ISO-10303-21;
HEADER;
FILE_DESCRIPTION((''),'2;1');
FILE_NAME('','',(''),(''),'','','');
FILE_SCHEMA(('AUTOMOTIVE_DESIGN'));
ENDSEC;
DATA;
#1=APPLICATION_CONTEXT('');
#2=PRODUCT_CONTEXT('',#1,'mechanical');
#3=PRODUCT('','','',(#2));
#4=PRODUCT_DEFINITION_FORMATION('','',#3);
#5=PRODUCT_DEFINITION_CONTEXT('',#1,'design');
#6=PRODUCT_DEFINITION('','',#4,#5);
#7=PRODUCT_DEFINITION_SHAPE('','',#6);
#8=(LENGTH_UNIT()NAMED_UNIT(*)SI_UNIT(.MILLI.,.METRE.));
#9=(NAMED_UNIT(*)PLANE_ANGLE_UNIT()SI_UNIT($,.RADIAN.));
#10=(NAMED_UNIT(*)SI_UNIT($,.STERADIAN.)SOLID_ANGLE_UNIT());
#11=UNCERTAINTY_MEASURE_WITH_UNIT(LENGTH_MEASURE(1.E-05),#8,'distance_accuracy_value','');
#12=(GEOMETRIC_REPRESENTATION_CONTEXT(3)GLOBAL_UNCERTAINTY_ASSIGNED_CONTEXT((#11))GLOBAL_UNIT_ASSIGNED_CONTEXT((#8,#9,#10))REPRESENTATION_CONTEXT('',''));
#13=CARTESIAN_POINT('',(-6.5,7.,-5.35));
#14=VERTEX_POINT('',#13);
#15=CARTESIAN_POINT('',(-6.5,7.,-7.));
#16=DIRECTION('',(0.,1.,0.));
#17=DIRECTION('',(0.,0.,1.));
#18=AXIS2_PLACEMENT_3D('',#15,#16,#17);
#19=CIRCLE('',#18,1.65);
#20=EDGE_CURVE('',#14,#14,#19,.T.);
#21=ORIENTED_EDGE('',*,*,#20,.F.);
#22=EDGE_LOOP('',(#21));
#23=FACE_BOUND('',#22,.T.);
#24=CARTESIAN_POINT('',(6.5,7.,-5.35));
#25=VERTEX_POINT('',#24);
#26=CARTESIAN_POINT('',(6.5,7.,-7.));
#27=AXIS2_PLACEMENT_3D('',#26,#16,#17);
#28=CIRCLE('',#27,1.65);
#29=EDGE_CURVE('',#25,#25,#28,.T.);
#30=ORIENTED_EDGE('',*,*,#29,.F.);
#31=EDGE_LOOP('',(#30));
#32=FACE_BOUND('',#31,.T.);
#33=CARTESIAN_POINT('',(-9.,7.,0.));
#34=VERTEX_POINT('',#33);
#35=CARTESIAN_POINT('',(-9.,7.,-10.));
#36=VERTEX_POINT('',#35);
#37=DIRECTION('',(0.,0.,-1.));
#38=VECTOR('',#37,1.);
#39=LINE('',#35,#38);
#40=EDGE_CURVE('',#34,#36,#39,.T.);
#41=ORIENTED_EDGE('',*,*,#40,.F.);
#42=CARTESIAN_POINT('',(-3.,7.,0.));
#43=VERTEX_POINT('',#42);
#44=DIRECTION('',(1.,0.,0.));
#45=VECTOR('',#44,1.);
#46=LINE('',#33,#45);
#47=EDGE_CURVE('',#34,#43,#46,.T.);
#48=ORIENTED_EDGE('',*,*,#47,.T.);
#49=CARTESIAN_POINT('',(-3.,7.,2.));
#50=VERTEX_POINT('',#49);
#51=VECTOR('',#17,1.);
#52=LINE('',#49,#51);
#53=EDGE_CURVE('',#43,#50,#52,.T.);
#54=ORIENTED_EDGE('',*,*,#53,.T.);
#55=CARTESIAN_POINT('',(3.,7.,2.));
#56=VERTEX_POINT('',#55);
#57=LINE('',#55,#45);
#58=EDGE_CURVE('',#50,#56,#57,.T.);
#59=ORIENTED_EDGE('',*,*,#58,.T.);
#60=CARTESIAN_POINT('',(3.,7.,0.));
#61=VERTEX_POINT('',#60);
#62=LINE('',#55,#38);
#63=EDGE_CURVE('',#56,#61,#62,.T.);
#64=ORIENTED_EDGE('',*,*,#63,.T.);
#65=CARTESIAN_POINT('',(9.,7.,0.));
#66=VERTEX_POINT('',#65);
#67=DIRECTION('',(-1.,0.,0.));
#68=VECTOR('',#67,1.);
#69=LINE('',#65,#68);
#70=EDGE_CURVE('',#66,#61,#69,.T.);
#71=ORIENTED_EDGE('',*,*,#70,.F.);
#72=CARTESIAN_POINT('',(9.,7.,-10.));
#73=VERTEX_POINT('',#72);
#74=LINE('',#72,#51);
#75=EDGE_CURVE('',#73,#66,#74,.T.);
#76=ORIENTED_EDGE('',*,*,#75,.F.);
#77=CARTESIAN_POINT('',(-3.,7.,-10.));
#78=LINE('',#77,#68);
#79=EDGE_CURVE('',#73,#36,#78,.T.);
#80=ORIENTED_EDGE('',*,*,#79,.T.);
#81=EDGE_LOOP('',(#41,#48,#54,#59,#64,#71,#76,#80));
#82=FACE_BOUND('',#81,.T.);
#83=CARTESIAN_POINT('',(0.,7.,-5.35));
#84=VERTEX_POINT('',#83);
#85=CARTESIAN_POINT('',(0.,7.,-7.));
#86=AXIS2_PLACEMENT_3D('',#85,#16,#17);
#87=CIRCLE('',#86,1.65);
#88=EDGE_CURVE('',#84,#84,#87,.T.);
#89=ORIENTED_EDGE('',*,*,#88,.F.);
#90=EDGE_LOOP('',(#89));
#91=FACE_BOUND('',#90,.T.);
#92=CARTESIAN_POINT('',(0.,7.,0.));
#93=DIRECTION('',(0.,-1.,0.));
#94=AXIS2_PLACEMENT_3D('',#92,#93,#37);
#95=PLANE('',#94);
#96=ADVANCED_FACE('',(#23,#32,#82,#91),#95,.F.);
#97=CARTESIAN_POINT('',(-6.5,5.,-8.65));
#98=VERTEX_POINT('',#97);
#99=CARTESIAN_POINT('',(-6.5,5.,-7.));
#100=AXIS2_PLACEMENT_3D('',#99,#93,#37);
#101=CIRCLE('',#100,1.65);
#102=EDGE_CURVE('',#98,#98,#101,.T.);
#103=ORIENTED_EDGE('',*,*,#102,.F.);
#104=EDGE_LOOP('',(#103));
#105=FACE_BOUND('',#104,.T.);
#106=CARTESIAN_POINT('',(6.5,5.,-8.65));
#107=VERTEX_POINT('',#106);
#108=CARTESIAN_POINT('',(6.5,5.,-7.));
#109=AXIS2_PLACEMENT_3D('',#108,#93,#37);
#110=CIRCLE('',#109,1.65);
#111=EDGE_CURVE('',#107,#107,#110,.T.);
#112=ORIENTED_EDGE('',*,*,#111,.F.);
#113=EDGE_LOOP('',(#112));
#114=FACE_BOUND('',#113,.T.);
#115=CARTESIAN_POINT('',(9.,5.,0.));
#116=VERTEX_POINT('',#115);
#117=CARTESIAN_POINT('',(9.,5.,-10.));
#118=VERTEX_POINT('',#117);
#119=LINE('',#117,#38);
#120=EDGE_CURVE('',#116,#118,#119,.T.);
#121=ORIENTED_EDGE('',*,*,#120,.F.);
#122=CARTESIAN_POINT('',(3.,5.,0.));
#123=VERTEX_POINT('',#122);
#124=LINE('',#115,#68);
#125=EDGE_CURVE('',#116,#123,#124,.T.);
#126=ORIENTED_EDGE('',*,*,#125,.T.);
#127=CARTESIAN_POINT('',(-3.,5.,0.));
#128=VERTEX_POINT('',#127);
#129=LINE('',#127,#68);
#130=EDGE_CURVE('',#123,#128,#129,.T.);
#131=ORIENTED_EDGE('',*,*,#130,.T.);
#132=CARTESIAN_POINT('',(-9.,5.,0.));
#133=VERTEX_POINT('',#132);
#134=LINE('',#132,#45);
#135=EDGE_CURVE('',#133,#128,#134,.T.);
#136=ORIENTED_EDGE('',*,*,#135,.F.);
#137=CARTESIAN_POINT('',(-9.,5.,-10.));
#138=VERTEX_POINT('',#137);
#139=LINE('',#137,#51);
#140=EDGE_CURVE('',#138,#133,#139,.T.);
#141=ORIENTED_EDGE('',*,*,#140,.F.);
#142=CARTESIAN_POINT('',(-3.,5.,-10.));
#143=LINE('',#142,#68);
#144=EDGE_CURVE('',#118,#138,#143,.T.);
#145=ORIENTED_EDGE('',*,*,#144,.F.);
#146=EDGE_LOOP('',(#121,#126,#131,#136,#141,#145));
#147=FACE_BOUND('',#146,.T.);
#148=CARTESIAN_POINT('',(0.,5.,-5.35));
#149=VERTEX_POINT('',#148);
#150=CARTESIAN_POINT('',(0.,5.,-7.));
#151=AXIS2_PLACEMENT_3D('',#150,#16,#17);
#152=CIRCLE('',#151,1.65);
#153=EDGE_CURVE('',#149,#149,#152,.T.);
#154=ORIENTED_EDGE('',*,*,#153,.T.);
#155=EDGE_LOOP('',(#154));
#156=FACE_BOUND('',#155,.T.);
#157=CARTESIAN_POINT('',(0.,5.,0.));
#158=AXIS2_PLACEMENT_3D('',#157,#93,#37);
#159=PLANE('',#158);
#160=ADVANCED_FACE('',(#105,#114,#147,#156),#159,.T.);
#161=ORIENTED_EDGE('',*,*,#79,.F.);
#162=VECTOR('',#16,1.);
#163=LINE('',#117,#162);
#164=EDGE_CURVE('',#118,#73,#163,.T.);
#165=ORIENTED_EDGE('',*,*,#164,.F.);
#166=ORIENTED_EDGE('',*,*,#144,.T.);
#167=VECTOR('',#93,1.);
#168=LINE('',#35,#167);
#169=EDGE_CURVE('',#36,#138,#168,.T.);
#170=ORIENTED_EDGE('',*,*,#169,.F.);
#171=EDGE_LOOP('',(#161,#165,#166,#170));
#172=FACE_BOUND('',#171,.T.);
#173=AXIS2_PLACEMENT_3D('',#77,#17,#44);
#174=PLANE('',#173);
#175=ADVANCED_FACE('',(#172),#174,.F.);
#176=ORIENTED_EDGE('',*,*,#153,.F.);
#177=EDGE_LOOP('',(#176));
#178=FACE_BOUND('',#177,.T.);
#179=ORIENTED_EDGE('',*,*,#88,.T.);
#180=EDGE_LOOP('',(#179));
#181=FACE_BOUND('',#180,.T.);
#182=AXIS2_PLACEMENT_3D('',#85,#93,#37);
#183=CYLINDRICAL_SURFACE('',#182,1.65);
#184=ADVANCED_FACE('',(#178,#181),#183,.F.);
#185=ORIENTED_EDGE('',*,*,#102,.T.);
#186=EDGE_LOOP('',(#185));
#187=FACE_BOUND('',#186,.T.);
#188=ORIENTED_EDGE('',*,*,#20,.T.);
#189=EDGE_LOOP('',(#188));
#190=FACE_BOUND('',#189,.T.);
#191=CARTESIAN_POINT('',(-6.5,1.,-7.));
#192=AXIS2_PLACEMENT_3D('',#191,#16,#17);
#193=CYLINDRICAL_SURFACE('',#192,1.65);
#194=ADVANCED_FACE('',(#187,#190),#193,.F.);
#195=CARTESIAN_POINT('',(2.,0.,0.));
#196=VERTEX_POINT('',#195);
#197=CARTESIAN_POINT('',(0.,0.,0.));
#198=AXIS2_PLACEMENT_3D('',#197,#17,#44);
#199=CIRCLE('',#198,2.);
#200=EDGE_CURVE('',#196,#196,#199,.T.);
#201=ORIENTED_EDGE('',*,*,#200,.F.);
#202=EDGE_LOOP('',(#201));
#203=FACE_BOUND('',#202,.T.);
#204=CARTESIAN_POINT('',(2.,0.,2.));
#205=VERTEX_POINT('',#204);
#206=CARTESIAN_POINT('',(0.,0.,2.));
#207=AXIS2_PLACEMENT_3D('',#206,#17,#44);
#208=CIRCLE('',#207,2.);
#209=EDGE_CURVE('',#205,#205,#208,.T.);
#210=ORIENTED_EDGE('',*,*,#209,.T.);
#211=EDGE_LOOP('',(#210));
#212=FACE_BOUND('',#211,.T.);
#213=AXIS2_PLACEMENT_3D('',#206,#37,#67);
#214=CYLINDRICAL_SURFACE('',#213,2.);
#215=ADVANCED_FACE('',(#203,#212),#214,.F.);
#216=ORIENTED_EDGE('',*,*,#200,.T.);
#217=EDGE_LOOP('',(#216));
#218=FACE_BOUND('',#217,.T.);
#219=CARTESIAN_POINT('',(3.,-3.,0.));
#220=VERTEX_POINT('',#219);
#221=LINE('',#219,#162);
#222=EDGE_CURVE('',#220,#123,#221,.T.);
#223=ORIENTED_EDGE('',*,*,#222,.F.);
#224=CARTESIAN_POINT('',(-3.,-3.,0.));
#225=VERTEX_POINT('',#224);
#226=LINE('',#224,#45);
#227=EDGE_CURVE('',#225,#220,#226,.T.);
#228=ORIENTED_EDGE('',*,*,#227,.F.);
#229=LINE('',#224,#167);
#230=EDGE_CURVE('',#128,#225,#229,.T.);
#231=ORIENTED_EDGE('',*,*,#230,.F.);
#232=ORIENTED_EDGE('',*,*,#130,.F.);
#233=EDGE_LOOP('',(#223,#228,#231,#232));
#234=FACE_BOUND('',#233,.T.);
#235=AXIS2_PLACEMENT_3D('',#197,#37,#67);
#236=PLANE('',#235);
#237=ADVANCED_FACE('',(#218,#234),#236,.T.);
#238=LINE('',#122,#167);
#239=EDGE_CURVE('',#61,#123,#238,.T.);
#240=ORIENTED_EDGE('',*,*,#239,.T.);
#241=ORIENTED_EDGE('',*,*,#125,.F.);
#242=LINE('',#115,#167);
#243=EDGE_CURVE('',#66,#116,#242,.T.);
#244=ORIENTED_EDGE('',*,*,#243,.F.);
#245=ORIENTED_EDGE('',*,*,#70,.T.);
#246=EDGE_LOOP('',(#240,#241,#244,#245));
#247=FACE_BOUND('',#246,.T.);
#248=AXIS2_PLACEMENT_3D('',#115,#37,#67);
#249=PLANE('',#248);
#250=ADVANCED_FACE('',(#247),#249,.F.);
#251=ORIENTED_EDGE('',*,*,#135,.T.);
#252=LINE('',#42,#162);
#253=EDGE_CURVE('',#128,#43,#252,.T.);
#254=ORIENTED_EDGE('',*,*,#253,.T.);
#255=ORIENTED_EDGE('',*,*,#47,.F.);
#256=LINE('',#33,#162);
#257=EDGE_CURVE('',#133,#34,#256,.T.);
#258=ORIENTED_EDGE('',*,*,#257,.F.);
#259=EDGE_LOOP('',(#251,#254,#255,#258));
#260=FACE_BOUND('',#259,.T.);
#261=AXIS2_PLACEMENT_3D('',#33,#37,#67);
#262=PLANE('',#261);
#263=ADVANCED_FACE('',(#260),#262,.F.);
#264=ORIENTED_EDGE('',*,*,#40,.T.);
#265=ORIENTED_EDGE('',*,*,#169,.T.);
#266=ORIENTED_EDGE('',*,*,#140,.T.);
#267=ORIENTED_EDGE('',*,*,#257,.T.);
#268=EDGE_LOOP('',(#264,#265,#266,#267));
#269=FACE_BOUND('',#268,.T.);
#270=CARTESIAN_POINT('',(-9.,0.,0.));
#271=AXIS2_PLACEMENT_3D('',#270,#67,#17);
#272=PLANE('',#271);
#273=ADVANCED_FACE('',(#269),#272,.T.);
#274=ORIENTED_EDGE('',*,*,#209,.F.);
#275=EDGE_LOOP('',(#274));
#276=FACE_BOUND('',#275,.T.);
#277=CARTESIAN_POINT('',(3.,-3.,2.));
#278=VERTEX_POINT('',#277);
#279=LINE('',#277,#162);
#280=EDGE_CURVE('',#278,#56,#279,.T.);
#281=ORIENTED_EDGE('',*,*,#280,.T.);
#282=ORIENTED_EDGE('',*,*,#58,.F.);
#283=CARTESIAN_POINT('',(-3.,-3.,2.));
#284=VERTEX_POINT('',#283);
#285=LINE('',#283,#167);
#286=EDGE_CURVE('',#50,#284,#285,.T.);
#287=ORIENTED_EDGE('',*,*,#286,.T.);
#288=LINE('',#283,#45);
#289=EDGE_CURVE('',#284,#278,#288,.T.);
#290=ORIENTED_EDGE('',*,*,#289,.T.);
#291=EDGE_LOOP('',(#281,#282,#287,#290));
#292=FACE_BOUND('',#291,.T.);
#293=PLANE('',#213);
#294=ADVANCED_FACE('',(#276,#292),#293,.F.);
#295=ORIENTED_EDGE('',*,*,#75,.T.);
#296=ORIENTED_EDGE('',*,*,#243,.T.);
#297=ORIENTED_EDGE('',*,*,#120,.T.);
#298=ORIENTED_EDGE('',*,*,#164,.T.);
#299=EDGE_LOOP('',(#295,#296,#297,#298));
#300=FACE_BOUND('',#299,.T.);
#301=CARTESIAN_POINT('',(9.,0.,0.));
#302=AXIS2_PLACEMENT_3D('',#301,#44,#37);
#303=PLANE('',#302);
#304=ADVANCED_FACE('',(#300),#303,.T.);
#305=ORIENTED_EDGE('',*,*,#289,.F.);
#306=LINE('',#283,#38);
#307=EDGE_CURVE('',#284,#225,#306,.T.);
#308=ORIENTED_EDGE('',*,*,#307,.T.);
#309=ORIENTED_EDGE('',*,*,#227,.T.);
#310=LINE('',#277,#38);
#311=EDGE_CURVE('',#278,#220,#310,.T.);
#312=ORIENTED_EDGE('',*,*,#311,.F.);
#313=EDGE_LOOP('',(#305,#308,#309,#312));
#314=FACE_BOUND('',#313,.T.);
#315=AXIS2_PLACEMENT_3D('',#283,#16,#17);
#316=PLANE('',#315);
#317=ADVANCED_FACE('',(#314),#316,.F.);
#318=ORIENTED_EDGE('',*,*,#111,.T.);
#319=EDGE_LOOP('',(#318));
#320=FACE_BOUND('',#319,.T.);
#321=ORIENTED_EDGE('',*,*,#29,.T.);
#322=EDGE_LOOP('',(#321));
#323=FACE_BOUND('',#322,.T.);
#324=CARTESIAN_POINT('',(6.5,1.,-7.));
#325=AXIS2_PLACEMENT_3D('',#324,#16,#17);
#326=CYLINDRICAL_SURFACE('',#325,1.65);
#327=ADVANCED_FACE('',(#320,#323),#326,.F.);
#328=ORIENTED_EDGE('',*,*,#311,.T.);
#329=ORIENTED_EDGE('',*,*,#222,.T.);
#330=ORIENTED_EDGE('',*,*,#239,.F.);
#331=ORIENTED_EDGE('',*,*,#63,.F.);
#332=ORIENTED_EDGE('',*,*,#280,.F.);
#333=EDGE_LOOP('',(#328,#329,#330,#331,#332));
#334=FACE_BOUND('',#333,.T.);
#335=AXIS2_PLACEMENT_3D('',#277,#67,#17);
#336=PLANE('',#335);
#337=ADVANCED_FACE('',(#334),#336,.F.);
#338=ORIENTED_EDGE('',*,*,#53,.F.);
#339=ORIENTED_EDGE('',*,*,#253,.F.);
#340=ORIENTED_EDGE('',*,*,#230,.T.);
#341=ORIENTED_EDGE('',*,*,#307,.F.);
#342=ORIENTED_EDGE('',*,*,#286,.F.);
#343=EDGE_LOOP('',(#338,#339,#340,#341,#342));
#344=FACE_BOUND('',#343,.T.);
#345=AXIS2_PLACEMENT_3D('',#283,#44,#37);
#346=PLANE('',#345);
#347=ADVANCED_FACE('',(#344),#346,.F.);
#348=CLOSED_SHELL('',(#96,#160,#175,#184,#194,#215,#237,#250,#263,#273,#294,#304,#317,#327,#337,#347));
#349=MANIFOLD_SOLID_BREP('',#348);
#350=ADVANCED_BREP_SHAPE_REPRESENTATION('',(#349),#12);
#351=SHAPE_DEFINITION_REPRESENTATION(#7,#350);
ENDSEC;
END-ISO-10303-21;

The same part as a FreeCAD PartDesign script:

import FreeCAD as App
import Part
import Sketcher
Q = App.Units.Quantity

doc = App.newDocument("Part")
params = doc.addObject("Spreadsheet::Sheet", "Params")
for row, (alias, value) in enumerate([
    ("sketch1_diameter", "4 mm"),
    ("sketch1_width", "6 mm"),
    ("sketch1_height", "8 mm"),
    ("pad1_length", "2 mm"),
    ("sketch2_diameter", "3.3 mm"),
    ("sketch2_width", "6 mm"),
    ("sketch2_height", "12 mm"),
    ("pad2_length", "2 mm"),
    ("sketch3_width", "2 mm"),
    ("sketch3_height", "10 mm"),
    ("pad3_length", "6 mm"),
    ("sketch4_width", "2 mm"),
    ("sketch4_height", "10 mm"),
    ("pad4_length", "6 mm"),
    ("sketch5_diameter", "3.3 mm"),
    ("pocket1_length", "6 mm"),
], start=1):
    params.set(f"A{row}", alias)
    params.set(f"B{row}", "=" + value)
    params.setAlias(f"B{row}", alias)

body = doc.addObject("PartDesign::Body", "Body")

# Sketch on XY plane
sketch1 = body.newObject("Sketcher::SketchObject", "Sketch")
sketch1.AttachmentSupport = (doc.getObject("XY_Plane"), [""])
sketch1.MapMode = "FlatFace"
sketch1.addGeometry([
    Part.LineSegment(App.Vector(-3, 5, 0), App.Vector(-3, -3, 0)),  # 0
    Part.LineSegment(App.Vector(-3, -3, 0), App.Vector(3, -3, 0)),  # 1
    Part.LineSegment(App.Vector(3, -3, 0), App.Vector(3, 5, 0)),  # 2
    Part.LineSegment(App.Vector(3, 5, 0), App.Vector(-3, 5, 0)),  # 3
    Part.Circle(App.Vector(0, 0, 0), App.Vector(0, 0, 1), 2),  # 4
], False)
sketch1.addConstraint([
    Sketcher.Constraint("Coincident", 0, 2, 1, 1),
    Sketcher.Constraint("Coincident", 1, 2, 2, 1),
    Sketcher.Constraint("Coincident", 2, 2, 3, 1),
    Sketcher.Constraint("Coincident", 3, 2, 0, 1),
    Sketcher.Constraint("Vertical", 0),
    Sketcher.Constraint("Horizontal", 1),
    Sketcher.Constraint("Vertical", 2),
    Sketcher.Constraint("Horizontal", 3),
    Sketcher.Constraint("Coincident", 4, 3, -1, 1),
    Sketcher.Constraint("Diameter", 4, Q("4 mm")),
    Sketcher.Constraint("DistanceX", 1, 1, 1, 2, Q("6 mm")),
    Sketcher.Constraint("DistanceY", 0, 2, 0, 1, Q("8 mm")),
    Sketcher.Constraint("DistanceX", 0, 2, -1, 1, Q("3 mm")),
    Sketcher.Constraint("DistanceY", 0, 2, -1, 1, Q("3 mm")),
])
sketch1.setExpression("Constraints[9]", "Params.sketch1_diameter")
sketch1.setExpression("Constraints[10]", "Params.sketch1_width")
sketch1.setExpression("Constraints[11]", "Params.sketch1_height")
pad1 = body.newObject("PartDesign::Pad", "Pad")
pad1.Profile = sketch1
pad1.setExpression("Length", "Params.pad1_length")

# Sketch on XZ plane
sketch2 = body.newObject("Sketcher::SketchObject", "Sketch001")
sketch2.AttachmentSupport = (doc.getObject("XZ_Plane"), [""])
sketch2.MapMode = "FlatFace"
sketch2.AttachmentOffset = App.Placement(App.Vector(0, 0, -5), App.Rotation())
sketch2.addGeometry([
    Part.LineSegment(App.Vector(-3, -10, 0), App.Vector(-3, 2, 0)),  # 0
    Part.LineSegment(App.Vector(-3, 2, 0), App.Vector(3, 2, 0)),  # 1
    Part.LineSegment(App.Vector(3, 2, 0), App.Vector(3, -10, 0)),  # 2
    Part.LineSegment(App.Vector(3, -10, 0), App.Vector(-3, -10, 0)),  # 3
    Part.Circle(App.Vector(0, -7, 0), App.Vector(0, 0, 1), 1.6),  # 4
], False)
sketch2.addConstraint([
    Sketcher.Constraint("Coincident", 0, 2, 1, 1),
    Sketcher.Constraint("Coincident", 1, 2, 2, 1),
    Sketcher.Constraint("Coincident", 2, 2, 3, 1),
    Sketcher.Constraint("Coincident", 3, 2, 0, 1),
    Sketcher.Constraint("Vertical", 0),
    Sketcher.Constraint("Horizontal", 1),
    Sketcher.Constraint("Vertical", 2),
    Sketcher.Constraint("Horizontal", 3),
    Sketcher.Constraint("PointOnObject", 4, 3, -2),
    Sketcher.Constraint("Diameter", 4, Q("3.3 mm")),
    Sketcher.Constraint("DistanceX", 1, 1, 1, 2, Q("6 mm")),
    Sketcher.Constraint("DistanceY", 0, 1, 0, 2, Q("12 mm")),
    Sketcher.Constraint("DistanceY", 4, 3, -1, 1, Q("7 mm")),
    Sketcher.Constraint("DistanceX", 0, 2, -1, 1, Q("3 mm")),
    Sketcher.Constraint("DistanceY", -1, 1, 0, 2, Q("2 mm")),
])
sketch2.setExpression("Constraints[9]", "Params.sketch2_diameter")
sketch2.setExpression("Constraints[10]", "Params.sketch2_width")
sketch2.setExpression("Constraints[11]", "Params.sketch2_height")
pad2 = body.newObject("PartDesign::Pad", "Pad001")
pad2.Profile = sketch2
pad2.setExpression("Length", "Params.pad2_length")
pad2.Reversed = True

# Sketch on YZ plane
sketch3 = body.newObject("Sketcher::SketchObject", "Sketch002")
sketch3.AttachmentSupport = (doc.getObject("YZ_Plane"), [""])
sketch3.MapMode = "FlatFace"
sketch3.AttachmentOffset = App.Placement(App.Vector(0, 0, -3), App.Rotation())
sketch3.addGeometry([
    Part.LineSegment(App.Vector(7, -10, 0), App.Vector(5, -10, 0)),
    Part.LineSegment(App.Vector(5, -10, 0), App.Vector(5, 0, 0)),
    Part.LineSegment(App.Vector(5, 0, 0), App.Vector(7, 0, 0)),
    Part.LineSegment(App.Vector(7, 0, 0), App.Vector(7, -10, 0)),
], False)
sketch3.addConstraint([
    Sketcher.Constraint("Coincident", 0, 2, 1, 1),
    Sketcher.Constraint("Coincident", 1, 2, 2, 1),
    Sketcher.Constraint("Coincident", 2, 2, 3, 1),
    Sketcher.Constraint("Coincident", 3, 2, 0, 1),
    Sketcher.Constraint("Horizontal", 0),
    Sketcher.Constraint("Vertical", 1),
    Sketcher.Constraint("Horizontal", 2),
    Sketcher.Constraint("Vertical", 3),
    Sketcher.Constraint("PointOnObject", 1, 2, -1),
    Sketcher.Constraint("DistanceX", 0, 2, 0, 1, Q("2 mm")),
    Sketcher.Constraint("DistanceY", 1, 1, 1, 2, Q("10 mm")),
    Sketcher.Constraint("DistanceX", -1, 1, 0, 2, Q("5 mm")),
])
sketch3.setExpression("Constraints[9]", "Params.sketch3_width")
sketch3.setExpression("Constraints[10]", "Params.sketch3_height")
pad3 = body.newObject("PartDesign::Pad", "Pad002")
pad3.Profile = sketch3
pad3.setExpression("Length", "Params.pad3_length")
pad3.Reversed = True

# Sketch on YZ plane
sketch4 = body.newObject("Sketcher::SketchObject", "Sketch003")
sketch4.AttachmentSupport = (doc.getObject("YZ_Plane"), [""])
sketch4.MapMode = "FlatFace"
sketch4.AttachmentOffset = App.Placement(App.Vector(0, 0, 3), App.Rotation())
sketch4.addGeometry([
    Part.LineSegment(App.Vector(7, 0, 0), App.Vector(5, 0, 0)),
    Part.LineSegment(App.Vector(5, 0, 0), App.Vector(5, -10, 0)),
    Part.LineSegment(App.Vector(5, -10, 0), App.Vector(7, -10, 0)),
    Part.LineSegment(App.Vector(7, -10, 0), App.Vector(7, 0, 0)),
], False)
sketch4.addConstraint([
    Sketcher.Constraint("Coincident", 0, 2, 1, 1),
    Sketcher.Constraint("Coincident", 1, 2, 2, 1),
    Sketcher.Constraint("Coincident", 2, 2, 3, 1),
    Sketcher.Constraint("Coincident", 3, 2, 0, 1),
    Sketcher.Constraint("Horizontal", 0),
    Sketcher.Constraint("Vertical", 1),
    Sketcher.Constraint("Horizontal", 2),
    Sketcher.Constraint("Vertical", 3),
    Sketcher.Constraint("PointOnObject", 0, 2, -1),
    Sketcher.Constraint("DistanceX", 0, 2, 0, 1, Q("2 mm")),
    Sketcher.Constraint("DistanceY", 1, 2, 1, 1, Q("10 mm")),
    Sketcher.Constraint("DistanceX", -1, 1, 0, 2, Q("5 mm")),
])
sketch4.setExpression("Constraints[9]", "Params.sketch4_width")
sketch4.setExpression("Constraints[10]", "Params.sketch4_height")
pad4 = body.newObject("PartDesign::Pad", "Pad003")
pad4.Profile = sketch4
pad4.setExpression("Length", "Params.pad4_length")

# Sketch on XZ plane
sketch5 = body.newObject("Sketcher::SketchObject", "Sketch004")
sketch5.AttachmentSupport = (doc.getObject("XZ_Plane"), [""])
sketch5.MapMode = "FlatFace"
sketch5.AttachmentOffset = App.Placement(App.Vector(0, 0, -7), App.Rotation())
sketch5.addGeometry([
    Part.Circle(App.Vector(-6.5, -7, 0), App.Vector(0, 0, 1), 1.6),
    Part.Circle(App.Vector(6.5, -7, 0), App.Vector(0, 0, 1), 1.6),
], False)
sketch5.addConstraint([
    Sketcher.Constraint("Equal", 0, 1),
    Sketcher.Constraint("Symmetric", 0, 3, 1, 3, -2),
    Sketcher.Constraint("Diameter", 0, Q("3.3 mm")),
    Sketcher.Constraint("DistanceY", 0, 3, -1, 1, Q("7 mm")),
    Sketcher.Constraint("DistanceX", 0, 3, 1, 3, Q("13 mm")),
])
sketch5.setExpression("Constraints[2]", "Params.sketch5_diameter")
pocket1 = body.newObject("PartDesign::Pocket", "Pocket")
pocket1.Profile = sketch5
pocket1.setExpression("Length", "Params.pocket1_length")
pocket1.Reversed = True

doc.recompute()
